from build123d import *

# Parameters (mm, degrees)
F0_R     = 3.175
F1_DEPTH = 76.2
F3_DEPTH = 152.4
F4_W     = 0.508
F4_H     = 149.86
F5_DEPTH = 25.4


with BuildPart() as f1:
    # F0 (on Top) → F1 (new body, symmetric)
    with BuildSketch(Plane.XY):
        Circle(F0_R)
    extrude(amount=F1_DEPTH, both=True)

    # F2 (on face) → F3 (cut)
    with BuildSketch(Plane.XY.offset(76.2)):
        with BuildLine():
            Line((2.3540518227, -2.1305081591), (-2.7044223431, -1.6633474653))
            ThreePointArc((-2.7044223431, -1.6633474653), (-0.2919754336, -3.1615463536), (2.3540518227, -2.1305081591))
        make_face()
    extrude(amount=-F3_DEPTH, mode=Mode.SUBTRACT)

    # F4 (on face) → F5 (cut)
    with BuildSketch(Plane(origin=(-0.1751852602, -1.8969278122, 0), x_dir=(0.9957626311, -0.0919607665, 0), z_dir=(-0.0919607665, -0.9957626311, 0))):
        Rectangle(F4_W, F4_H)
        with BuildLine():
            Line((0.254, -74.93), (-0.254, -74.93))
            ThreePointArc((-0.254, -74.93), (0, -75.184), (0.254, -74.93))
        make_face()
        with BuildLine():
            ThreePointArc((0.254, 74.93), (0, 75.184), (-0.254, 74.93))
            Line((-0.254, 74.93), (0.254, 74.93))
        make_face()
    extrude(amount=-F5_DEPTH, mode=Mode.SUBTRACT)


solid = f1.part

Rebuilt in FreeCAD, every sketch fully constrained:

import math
import FreeCAD as App
import Part
import Sketcher

V = App.Vector
Q = App.Units.Quantity

doc = App.newDocument("Part")
params = doc.addObject("Spreadsheet::Sheet", "Params")
for row, (alias, value) in enumerate([
    ("sketch1_diameter", "0.25 in"),
    ("pad1_length", "6 in"),
    ("sketch2_radius", "0.125 in"),
    ("sketch2_length", "0.2 in"),
    ("pocket1_length", "6 in"),
    ("sketch3_radius", "0.01 in"),
    ("sketch3_height", "5.9 in"),
    ("pocket2_length", "1 in"),
], start=1):
    params.set(f"A{row}", alias)
    params.set(f"B{row}", "=" + value)
    params.setAlias(f"B{row}", alias)

body = doc.addObject("PartDesign::Body", "Body")

sketch1 = body.newObject("Sketcher::SketchObject", "Sketch")
sketch1.AttachmentSupport = (doc.getObject("XY_Plane"), [""])
sketch1.MapMode = "FlatFace"
sketch1.addGeometry(Part.Circle(V(0, 0, 0), V(0, 0, 1), 3.2), False)
sketch1.addConstraint([
    Sketcher.Constraint("Coincident", 0, 3, -1, 1),
    Sketcher.Constraint("Diameter", 0, Q("0.25 in")),
])
sketch1.setExpression("Constraints[1]", "Params.sketch1_diameter")
pad1 = body.newObject("PartDesign::Pad", "Pad")
pad1.Profile = sketch1
pad1.setExpression("Length", "Params.pad1_length")
pad1.Midplane = True

sketch2 = body.newObject("Sketcher::SketchObject", "Sketch001")
sketch2.AttachmentSupport = (doc.getObject("XY_Plane"), [""])
sketch2.MapMode = "FlatFace"
sketch2.AttachmentOffset = App.Placement(V(0, 0, 3 * 25.4), App.Rotation())
sketch2.addGeometry([
    Part.LineSegment(V(2.4, -2.1, 0), V(-2.7, -1.7, 0)),
    Part.ArcOfCircle(Part.Circle(V(0, 0, 0), V(0, 0, 1), 3.2), math.radians(-148), math.radians(-42)),
], False)
sketch2.addConstraint([
    Sketcher.Constraint("Coincident", 0, 1, 1, 2),
    Sketcher.Constraint("Coincident", 1, 1, 0, 2),
    Sketcher.Constraint("Coincident", 1, 3, -1, 1),
    Sketcher.Constraint("Radius", 1, Q("0.125 in")),
    Sketcher.Constraint("Distance", 0, Q("0.2 in")),
    Sketcher.Constraint("DistanceX", -1, 1, 0, 1, Q("2.354052 mm")),
])
sketch2.setExpression("Constraints[3]", "Params.sketch2_radius")
sketch2.setExpression("Constraints[4]", "Params.sketch2_length")
pocket1 = body.newObject("PartDesign::Pocket", "Pocket")
pocket1.Profile = sketch2
pocket1.setExpression("Length", "Params.pocket1_length")

sketch3 = body.newObject("Sketcher::SketchObject", "Sketch002")
sketch3.Placement = App.Placement(V(-0.175185, -1.896928, 0), App.Rotation(V(0.995762631, -0.091960766, 0), V(0, 0, 1), V(-0.091960766, -0.995762631, 0), "ZXY"))
sketch3.addGeometry([
    Part.LineSegment(V(-0.25, 74.93, 0), V(-0.25, -74.93, 0)),
    Part.ArcOfCircle(Part.Circle(V(0, -74.93, 0), V(0, 0, 1), 0.25), math.radians(180), math.radians(360)),
    Part.LineSegment(V(0.25, -74.93, 0), V(0.25, 74.93, 0)),
    Part.ArcOfCircle(Part.Circle(V(0, 74.93, 0), V(0, 0, 1), 0.25), math.radians(0), math.radians(180)),
], False)
sketch3.addConstraint([
    Sketcher.Constraint("Tangent", 0, 2, 1, 1),
    Sketcher.Constraint("Tangent", 1, 2, 2, 1),
    Sketcher.Constraint("Tangent", 2, 2, 3, 1),
    Sketcher.Constraint("Tangent", 3, 2, 0, 1),
    Sketcher.Constraint("Vertical", 0),
    Sketcher.Constraint("Vertical", 2),
    Sketcher.Constraint("Symmetric", 1, 3, 3, 3, -1, 1),
    Sketcher.Constraint("Radius", 1, Q("0.01 in")),
    Sketcher.Constraint("DistanceY", 0, 2, 0, 1, Q("5.9 in")),
])
sketch3.setExpression("Constraints[7]", "Params.sketch3_radius")
sketch3.setExpression("Constraints[8]", "Params.sketch3_height")
pocket2 = body.newObject("PartDesign::Pocket", "Pocket001")
pocket2.Profile = sketch3
pocket2.setExpression("Length", "Params.pocket2_length")

doc.recompute()
